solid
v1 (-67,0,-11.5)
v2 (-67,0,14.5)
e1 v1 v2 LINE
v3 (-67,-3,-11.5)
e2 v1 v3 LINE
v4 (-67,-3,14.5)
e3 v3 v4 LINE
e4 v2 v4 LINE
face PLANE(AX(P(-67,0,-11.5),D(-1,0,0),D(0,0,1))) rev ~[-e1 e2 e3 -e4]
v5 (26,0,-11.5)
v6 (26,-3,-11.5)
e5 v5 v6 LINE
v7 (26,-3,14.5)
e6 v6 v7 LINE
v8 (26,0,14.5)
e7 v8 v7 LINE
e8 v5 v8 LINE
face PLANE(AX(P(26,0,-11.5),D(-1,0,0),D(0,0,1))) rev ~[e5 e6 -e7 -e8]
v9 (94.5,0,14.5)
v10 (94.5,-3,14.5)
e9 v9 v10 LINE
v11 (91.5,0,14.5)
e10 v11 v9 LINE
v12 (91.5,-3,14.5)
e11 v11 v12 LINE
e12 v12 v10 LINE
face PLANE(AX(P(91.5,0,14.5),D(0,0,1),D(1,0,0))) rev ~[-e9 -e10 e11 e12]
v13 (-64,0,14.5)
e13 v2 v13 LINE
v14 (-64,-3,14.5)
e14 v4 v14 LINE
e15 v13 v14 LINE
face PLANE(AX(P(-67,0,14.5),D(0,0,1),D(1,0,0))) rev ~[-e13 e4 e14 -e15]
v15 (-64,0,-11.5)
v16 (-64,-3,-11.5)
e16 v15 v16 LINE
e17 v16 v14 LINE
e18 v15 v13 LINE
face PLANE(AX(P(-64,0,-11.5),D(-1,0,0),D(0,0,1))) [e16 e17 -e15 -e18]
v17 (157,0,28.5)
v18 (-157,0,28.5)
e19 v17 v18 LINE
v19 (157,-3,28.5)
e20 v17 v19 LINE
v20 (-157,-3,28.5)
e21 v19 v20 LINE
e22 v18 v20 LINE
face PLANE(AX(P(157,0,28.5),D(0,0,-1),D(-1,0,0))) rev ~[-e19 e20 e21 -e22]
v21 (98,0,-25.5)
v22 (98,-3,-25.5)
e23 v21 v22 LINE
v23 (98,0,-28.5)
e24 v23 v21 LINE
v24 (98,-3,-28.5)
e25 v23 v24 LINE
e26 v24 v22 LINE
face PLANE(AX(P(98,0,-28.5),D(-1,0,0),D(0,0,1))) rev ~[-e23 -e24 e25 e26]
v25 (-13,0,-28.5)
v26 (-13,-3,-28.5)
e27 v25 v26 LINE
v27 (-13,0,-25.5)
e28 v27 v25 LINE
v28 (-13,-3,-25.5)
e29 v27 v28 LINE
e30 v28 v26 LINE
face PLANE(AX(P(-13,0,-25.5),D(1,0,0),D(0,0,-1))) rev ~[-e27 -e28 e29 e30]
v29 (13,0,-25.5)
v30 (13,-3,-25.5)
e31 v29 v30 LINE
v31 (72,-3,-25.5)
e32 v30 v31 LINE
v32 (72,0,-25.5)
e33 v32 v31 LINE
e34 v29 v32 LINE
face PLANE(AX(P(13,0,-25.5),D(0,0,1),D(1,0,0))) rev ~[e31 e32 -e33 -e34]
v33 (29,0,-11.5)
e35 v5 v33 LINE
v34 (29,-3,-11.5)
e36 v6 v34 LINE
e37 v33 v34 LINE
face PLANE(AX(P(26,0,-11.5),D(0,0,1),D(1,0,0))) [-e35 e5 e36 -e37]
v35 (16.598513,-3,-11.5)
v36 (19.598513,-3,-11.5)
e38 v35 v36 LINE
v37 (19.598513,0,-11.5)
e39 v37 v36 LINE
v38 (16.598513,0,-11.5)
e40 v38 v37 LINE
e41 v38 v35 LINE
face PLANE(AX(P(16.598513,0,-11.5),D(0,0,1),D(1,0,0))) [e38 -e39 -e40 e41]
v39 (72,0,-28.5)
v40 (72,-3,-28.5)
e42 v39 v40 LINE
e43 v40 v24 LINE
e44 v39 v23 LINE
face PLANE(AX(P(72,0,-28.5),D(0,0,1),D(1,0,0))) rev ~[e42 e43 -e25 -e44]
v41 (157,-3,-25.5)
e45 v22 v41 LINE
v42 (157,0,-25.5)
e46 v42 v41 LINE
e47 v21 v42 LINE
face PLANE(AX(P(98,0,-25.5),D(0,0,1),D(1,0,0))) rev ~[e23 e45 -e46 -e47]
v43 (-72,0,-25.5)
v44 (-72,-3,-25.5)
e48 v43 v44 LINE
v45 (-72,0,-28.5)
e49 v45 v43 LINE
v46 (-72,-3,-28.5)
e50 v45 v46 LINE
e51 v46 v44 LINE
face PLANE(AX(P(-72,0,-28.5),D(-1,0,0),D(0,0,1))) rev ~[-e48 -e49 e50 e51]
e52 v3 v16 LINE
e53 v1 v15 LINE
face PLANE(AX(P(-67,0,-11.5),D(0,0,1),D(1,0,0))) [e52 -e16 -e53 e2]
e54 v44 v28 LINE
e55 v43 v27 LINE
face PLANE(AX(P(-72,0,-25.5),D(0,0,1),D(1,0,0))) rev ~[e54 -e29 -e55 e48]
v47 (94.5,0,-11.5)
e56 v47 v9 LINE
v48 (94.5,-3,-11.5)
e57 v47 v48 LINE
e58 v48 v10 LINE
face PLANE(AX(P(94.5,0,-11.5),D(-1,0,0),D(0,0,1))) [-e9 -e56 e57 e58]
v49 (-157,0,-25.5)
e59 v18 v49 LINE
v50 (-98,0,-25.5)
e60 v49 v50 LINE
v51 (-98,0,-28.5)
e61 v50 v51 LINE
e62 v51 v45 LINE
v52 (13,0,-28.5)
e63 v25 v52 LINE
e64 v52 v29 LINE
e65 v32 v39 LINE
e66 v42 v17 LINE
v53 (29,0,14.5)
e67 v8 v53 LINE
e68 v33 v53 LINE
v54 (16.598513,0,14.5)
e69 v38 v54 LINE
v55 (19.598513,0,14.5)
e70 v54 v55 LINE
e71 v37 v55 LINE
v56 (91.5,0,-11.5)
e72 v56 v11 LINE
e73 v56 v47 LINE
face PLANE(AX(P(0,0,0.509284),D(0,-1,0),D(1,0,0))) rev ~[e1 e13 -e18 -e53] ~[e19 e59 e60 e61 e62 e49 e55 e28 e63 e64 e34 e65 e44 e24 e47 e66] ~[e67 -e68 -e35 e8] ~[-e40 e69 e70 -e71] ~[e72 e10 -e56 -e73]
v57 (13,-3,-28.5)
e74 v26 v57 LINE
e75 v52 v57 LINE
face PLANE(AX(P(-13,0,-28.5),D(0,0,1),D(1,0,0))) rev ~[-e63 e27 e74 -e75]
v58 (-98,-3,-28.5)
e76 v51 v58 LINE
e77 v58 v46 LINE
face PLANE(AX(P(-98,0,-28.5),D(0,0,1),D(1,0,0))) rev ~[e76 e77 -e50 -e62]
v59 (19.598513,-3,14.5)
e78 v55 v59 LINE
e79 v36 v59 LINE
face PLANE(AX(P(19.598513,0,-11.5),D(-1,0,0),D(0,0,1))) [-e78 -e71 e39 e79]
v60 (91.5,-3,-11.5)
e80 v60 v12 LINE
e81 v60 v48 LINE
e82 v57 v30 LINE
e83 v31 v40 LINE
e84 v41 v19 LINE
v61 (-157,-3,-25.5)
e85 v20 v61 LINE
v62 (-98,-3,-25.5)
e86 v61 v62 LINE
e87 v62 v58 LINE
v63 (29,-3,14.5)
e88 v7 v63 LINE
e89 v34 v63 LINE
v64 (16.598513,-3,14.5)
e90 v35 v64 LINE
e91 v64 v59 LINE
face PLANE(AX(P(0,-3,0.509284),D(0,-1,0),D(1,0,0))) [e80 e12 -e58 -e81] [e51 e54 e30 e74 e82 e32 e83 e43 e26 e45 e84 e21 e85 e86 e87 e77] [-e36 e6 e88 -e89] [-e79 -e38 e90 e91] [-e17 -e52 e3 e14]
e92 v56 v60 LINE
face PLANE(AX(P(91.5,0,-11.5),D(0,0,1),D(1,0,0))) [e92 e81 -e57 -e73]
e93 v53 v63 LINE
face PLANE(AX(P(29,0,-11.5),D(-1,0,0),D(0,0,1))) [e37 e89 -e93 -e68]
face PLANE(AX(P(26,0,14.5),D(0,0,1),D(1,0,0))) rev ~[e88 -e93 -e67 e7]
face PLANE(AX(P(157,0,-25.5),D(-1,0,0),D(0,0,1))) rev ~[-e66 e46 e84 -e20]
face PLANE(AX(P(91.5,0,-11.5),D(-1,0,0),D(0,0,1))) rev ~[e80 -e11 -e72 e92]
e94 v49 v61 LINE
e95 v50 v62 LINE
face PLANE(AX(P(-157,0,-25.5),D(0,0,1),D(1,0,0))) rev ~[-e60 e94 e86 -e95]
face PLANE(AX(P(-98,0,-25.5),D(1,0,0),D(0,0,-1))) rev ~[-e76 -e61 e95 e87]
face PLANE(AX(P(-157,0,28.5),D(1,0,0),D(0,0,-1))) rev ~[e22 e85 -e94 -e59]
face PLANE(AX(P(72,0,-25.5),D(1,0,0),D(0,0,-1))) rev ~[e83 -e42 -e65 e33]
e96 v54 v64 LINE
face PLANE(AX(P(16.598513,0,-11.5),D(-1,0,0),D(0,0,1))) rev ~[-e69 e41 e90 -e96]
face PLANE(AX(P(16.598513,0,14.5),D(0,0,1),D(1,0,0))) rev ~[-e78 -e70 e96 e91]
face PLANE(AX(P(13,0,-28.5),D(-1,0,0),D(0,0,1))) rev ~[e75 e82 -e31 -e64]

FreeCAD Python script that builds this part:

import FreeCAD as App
import Part
import Sketcher

doc = App.newDocument("Part")
body = doc.addObject("PartDesign::Body", "Body")

sketch1 = body.newObject("Sketcher::SketchObject", "Sketch")
sketch1.AttachmentSupport = (doc.getObject("XZ_Plane"), [""])
sketch1.MapMode = "FlatFace"
sketch1.addGeometry([
    Part.LineSegment(App.Vector(72, -28.5, 0), App.Vector(98, -28.5, 0)),
    Part.LineSegment(App.Vector(98, -28.5, 0), App.Vector(98, -25.5, 0)),
    Part.LineSegment(App.Vector(98, -25.5, 0), App.Vector(157, -25.5, 0)),
    Part.LineSegment(App.Vector(157, -25.5, 0), App.Vector(157, 28.5, 0)),
    Part.LineSegment(App.Vector(157, 28.5, 0), App.Vector(-157, 28.5, 0)),
    Part.LineSegment(App.Vector(-157, 28.5, 0), App.Vector(-157, -25.5, 0)),
    Part.LineSegment(App.Vector(-157, -25.5, 0), App.Vector(-98, -25.5, 0)),
    Part.LineSegment(App.Vector(-98, -25.5, 0), App.Vector(-98, -28.5, 0)),
    Part.LineSegment(App.Vector(-98, -28.5, 0), App.Vector(-72, -28.5, 0)),
    Part.LineSegment(App.Vector(-72, -28.5, 0), App.Vector(-72, -25.5, 0)),
    Part.LineSegment(App.Vector(-72, -25.5, 0), App.Vector(-13, -25.5, 0)),
    Part.LineSegment(App.Vector(-13, -25.5, 0), App.Vector(-13, -28.5, 0)),
    Part.LineSegment(App.Vector(-13, -28.5, 0), App.Vector(13, -28.5, 0)),
    Part.LineSegment(App.Vector(13, -28.5, 0), App.Vector(13, -25.5, 0)),
    Part.LineSegment(App.Vector(13, -25.5, 0), App.Vector(72, -25.5, 0)),
    Part.LineSegment(App.Vector(72, -25.5, 0), App.Vector(72, -28.5, 0)),
    Part.LineSegment(App.Vector(-64, -11.5, 0), App.Vector(-67, -11.5, 0)),
    Part.LineSegment(App.Vector(-67, -11.5, 0), App.Vector(-67, 14.5, 0)),
    Part.LineSegment(App.Vector(-67, 14.5, 0), App.Vector(-64, 14.5, 0)),
    Part.LineSegment(App.Vector(-64, 14.5, 0), App.Vector(-64, -11.5, 0)),
    Part.LineSegment(App.Vector(19.6, -11.5, 0), App.Vector(16.6, -11.5, 0)),
    Part.LineSegment(App.Vector(16.6, -11.5, 0), App.Vector(16.6, 14.5, 0)),
    Part.LineSegment(App.Vector(16.6, 14.5, 0), App.Vector(19.6, 14.5, 0)),
    Part.LineSegment(App.Vector(19.6, 14.5, 0), App.Vector(19.6, -11.5, 0)),
    Part.LineSegment(App.Vector(29, -11.5, 0), App.Vector(26, -11.5, 0)),
    Part.LineSegment(App.Vector(26, -11.5, 0), App.Vector(26, 14.5, 0)),
    Part.LineSegment(App.Vector(26, 14.5, 0), App.Vector(29, 14.5, 0)),
    Part.LineSegment(App.Vector(29, 14.5, 0), App.Vector(29, -11.5, 0)),
    Part.LineSegment(App.Vector(94.5, -11.5, 0), App.Vector(91.5, -11.5, 0)),
    Part.LineSegment(App.Vector(91.5, -11.5, 0), App.Vector(91.5, 14.5, 0)),
    Part.LineSegment(App.Vector(91.5, 14.5, 0), App.Vector(94.5, 14.5, 0)),
    Part.LineSegment(App.Vector(94.5, 14.5, 0), App.Vector(94.5, -11.5, 0)),
], False)
sketch1.addConstraint([
    Sketcher.Constraint("Coincident", 0, 2, 1, 1),
    Sketcher.Constraint("Coincident", 1, 2, 2, 1),
    Sketcher.Constraint("Coincident", 2, 2, 3, 1),
    Sketcher.Constraint("Coincident", 3, 2, 4, 1),
    Sketcher.Constraint("Coincident", 4, 2, 5, 1),
    Sketcher.Constraint("Coincident", 5, 2, 6, 1),
    Sketcher.Constraint("Coincident", 6, 2, 7, 1),
    Sketcher.Constraint("Coincident", 7, 2, 8, 1),
    Sketcher.Constraint("Coincident", 8, 2, 9, 1),
    Sketcher.Constraint("Coincident", 9, 2, 10, 1),
    Sketcher.Constraint("Coincident", 10, 2, 11, 1),
    Sketcher.Constraint("Coincident", 11, 2, 12, 1),
    Sketcher.Constraint("Coincident", 12, 2, 13, 1),
    Sketcher.Constraint("Coincident", 13, 2, 14, 1),
    Sketcher.Constraint("Coincident", 14, 2, 15, 1),
    Sketcher.Constraint("Coincident", 15, 2, 0, 1),
    Sketcher.Constraint("Coincident", 16, 2, 17, 1),
    Sketcher.Constraint("Coincident", 17, 2, 18, 1),
    Sketcher.Constraint("Coincident", 18, 2, 19, 1),
    Sketcher.Constraint("Coincident", 19, 2, 16, 1),
    Sketcher.Constraint("Coincident", 20, 2, 21, 1),
    Sketcher.Constraint("Coincident", 21, 2, 22, 1),
    Sketcher.Constraint("Coincident", 22, 2, 23, 1),
    Sketcher.Constraint("Coincident", 23, 2, 20, 1),
    Sketcher.Constraint("Coincident", 24, 2, 25, 1),
    Sketcher.Constraint("Coincident", 25, 2, 26, 1),
    Sketcher.Constraint("Coincident", 26, 2, 27, 1),
    Sketcher.Constraint("Coincident", 27, 2, 24, 1),
    Sketcher.Constraint("Coincident", 28, 2, 29, 1),
    Sketcher.Constraint("Coincident", 29, 2, 30, 1),
    Sketcher.Constraint("Coincident", 30, 2, 31, 1),
    Sketcher.Constraint("Coincident", 31, 2, 28, 1),
    Sketcher.Constraint("Horizontal", 0),
    Sketcher.Constraint("Vertical", 1),
    Sketcher.Constraint("Horizontal", 2),
    Sketcher.Constraint("Vertical", 3),
    Sketcher.Constraint("Horizontal", 4),
    Sketcher.Constraint("Vertical", 5),
    Sketcher.Constraint("Horizontal", 6),
    Sketcher.Constraint("Vertical", 7),
    Sketcher.Constraint("Horizontal", 8),
    Sketcher.Constraint("Vertical", 9),
    Sketcher.Constraint("Horizontal", 10),
    Sketcher.Constraint("Vertical", 11),
    Sketcher.Constraint("Horizontal", 12),
    Sketcher.Constraint("Vertical", 13),
    Sketcher.Constraint("Horizontal", 14),
    Sketcher.Constraint("Vertical", 15),
    Sketcher.Constraint("Horizontal", 16),
    Sketcher.Constraint("Vertical", 17),
    Sketcher.Constraint("Horizontal", 18),
    Sketcher.Constraint("Vertical", 19),
    Sketcher.Constraint("Horizontal", 20),
    Sketcher.Constraint("Vertical", 21),
    Sketcher.Constraint("Horizontal", 22),
    Sketcher.Constraint("Vertical", 23),
    Sketcher.Constraint("Horizontal", 24),
    Sketcher.Constraint("Vertical", 25),
    Sketcher.Constraint("Horizontal", 26),
    Sketcher.Constraint("Vertical", 27),
    Sketcher.Constraint("Horizontal", 28),
    Sketcher.Constraint("Vertical", 29),
    Sketcher.Constraint("Horizontal", 30),
    Sketcher.Constraint("Vertical", 31),
    Sketcher.Constraint("Symmetric", 2, 2, 5, 2, -2),
    Sketcher.Constraint("Symmetric", 0, 2, 7, 2, -2),
    Sketcher.Constraint("Symmetric", 10, 2, 13, 2, -2),
    Sketcher.Constraint("Horizontal", 6, 2, 9, 2),
    Sketcher.Constraint("Horizontal", 8, 2, 11, 2),
    Sketcher.Constraint("Horizontal", 19, 2, 20, 2),
    Sketcher.Constraint("Horizontal", 18, 2, 21, 2),
    Sketcher.Constraint("Horizontal", 23, 2, 24, 2),
    Sketcher.Constraint("Horizontal", 22, 2, 25, 2),
    Sketcher.Constraint("Horizontal", 27, 2, 28, 2),
    Sketcher.Constraint("Horizontal", 26, 2, 29, 2),
    Sketcher.Constraint("Equal", 0, 8),
    Sketcher.Constraint("Equal", 6, 10),
    Sketcher.Constraint("Equal", 8, 12),
    Sketcher.Constraint("Equal", 18, 20),
    Sketcher.Constraint("Equal", 22, 24),
    Sketcher.Constraint("Equal", 26, 28),
    Sketcher.Constraint("Equal", 30, 1),
    Sketcher.Constraint("Equal", 12, 17),
    Sketcher.Constraint("DistanceX", 0, 1, 0, 2, 26.0),
    Sketcher.Constraint("DistanceX", 2, 1, 2, 2, 59.0),
    Sketcher.Constraint("DistanceX", 16, 2, 16, 1, 3.0),
    Sketcher.Constraint("DistanceY", 3, 1, 3, 2, 54.0),
    Sketcher.Constraint("DistanceX", 16, 2, -1, 1, 67.0),
    Sketcher.Constraint("DistanceX", -1, 1, 24, 2, 26.0),
    Sketcher.Constraint("DistanceY", 9, 2, 16, 2, 14.0),
    Sketcher.Constraint("DistanceY", 0, 2, -1, 1, 28.5),
    Sketcher.Constraint("DistanceX", -1, 1, 28, 2, 91.5),
    Sketcher.Constraint("DistanceX", -1, 1, 20, 2, 16.598513),
])
pad1 = body.newObject("PartDesign::Pad", "Pad")
pad1.Profile = sketch1
pad1.Length = 3

doc.recompute()
